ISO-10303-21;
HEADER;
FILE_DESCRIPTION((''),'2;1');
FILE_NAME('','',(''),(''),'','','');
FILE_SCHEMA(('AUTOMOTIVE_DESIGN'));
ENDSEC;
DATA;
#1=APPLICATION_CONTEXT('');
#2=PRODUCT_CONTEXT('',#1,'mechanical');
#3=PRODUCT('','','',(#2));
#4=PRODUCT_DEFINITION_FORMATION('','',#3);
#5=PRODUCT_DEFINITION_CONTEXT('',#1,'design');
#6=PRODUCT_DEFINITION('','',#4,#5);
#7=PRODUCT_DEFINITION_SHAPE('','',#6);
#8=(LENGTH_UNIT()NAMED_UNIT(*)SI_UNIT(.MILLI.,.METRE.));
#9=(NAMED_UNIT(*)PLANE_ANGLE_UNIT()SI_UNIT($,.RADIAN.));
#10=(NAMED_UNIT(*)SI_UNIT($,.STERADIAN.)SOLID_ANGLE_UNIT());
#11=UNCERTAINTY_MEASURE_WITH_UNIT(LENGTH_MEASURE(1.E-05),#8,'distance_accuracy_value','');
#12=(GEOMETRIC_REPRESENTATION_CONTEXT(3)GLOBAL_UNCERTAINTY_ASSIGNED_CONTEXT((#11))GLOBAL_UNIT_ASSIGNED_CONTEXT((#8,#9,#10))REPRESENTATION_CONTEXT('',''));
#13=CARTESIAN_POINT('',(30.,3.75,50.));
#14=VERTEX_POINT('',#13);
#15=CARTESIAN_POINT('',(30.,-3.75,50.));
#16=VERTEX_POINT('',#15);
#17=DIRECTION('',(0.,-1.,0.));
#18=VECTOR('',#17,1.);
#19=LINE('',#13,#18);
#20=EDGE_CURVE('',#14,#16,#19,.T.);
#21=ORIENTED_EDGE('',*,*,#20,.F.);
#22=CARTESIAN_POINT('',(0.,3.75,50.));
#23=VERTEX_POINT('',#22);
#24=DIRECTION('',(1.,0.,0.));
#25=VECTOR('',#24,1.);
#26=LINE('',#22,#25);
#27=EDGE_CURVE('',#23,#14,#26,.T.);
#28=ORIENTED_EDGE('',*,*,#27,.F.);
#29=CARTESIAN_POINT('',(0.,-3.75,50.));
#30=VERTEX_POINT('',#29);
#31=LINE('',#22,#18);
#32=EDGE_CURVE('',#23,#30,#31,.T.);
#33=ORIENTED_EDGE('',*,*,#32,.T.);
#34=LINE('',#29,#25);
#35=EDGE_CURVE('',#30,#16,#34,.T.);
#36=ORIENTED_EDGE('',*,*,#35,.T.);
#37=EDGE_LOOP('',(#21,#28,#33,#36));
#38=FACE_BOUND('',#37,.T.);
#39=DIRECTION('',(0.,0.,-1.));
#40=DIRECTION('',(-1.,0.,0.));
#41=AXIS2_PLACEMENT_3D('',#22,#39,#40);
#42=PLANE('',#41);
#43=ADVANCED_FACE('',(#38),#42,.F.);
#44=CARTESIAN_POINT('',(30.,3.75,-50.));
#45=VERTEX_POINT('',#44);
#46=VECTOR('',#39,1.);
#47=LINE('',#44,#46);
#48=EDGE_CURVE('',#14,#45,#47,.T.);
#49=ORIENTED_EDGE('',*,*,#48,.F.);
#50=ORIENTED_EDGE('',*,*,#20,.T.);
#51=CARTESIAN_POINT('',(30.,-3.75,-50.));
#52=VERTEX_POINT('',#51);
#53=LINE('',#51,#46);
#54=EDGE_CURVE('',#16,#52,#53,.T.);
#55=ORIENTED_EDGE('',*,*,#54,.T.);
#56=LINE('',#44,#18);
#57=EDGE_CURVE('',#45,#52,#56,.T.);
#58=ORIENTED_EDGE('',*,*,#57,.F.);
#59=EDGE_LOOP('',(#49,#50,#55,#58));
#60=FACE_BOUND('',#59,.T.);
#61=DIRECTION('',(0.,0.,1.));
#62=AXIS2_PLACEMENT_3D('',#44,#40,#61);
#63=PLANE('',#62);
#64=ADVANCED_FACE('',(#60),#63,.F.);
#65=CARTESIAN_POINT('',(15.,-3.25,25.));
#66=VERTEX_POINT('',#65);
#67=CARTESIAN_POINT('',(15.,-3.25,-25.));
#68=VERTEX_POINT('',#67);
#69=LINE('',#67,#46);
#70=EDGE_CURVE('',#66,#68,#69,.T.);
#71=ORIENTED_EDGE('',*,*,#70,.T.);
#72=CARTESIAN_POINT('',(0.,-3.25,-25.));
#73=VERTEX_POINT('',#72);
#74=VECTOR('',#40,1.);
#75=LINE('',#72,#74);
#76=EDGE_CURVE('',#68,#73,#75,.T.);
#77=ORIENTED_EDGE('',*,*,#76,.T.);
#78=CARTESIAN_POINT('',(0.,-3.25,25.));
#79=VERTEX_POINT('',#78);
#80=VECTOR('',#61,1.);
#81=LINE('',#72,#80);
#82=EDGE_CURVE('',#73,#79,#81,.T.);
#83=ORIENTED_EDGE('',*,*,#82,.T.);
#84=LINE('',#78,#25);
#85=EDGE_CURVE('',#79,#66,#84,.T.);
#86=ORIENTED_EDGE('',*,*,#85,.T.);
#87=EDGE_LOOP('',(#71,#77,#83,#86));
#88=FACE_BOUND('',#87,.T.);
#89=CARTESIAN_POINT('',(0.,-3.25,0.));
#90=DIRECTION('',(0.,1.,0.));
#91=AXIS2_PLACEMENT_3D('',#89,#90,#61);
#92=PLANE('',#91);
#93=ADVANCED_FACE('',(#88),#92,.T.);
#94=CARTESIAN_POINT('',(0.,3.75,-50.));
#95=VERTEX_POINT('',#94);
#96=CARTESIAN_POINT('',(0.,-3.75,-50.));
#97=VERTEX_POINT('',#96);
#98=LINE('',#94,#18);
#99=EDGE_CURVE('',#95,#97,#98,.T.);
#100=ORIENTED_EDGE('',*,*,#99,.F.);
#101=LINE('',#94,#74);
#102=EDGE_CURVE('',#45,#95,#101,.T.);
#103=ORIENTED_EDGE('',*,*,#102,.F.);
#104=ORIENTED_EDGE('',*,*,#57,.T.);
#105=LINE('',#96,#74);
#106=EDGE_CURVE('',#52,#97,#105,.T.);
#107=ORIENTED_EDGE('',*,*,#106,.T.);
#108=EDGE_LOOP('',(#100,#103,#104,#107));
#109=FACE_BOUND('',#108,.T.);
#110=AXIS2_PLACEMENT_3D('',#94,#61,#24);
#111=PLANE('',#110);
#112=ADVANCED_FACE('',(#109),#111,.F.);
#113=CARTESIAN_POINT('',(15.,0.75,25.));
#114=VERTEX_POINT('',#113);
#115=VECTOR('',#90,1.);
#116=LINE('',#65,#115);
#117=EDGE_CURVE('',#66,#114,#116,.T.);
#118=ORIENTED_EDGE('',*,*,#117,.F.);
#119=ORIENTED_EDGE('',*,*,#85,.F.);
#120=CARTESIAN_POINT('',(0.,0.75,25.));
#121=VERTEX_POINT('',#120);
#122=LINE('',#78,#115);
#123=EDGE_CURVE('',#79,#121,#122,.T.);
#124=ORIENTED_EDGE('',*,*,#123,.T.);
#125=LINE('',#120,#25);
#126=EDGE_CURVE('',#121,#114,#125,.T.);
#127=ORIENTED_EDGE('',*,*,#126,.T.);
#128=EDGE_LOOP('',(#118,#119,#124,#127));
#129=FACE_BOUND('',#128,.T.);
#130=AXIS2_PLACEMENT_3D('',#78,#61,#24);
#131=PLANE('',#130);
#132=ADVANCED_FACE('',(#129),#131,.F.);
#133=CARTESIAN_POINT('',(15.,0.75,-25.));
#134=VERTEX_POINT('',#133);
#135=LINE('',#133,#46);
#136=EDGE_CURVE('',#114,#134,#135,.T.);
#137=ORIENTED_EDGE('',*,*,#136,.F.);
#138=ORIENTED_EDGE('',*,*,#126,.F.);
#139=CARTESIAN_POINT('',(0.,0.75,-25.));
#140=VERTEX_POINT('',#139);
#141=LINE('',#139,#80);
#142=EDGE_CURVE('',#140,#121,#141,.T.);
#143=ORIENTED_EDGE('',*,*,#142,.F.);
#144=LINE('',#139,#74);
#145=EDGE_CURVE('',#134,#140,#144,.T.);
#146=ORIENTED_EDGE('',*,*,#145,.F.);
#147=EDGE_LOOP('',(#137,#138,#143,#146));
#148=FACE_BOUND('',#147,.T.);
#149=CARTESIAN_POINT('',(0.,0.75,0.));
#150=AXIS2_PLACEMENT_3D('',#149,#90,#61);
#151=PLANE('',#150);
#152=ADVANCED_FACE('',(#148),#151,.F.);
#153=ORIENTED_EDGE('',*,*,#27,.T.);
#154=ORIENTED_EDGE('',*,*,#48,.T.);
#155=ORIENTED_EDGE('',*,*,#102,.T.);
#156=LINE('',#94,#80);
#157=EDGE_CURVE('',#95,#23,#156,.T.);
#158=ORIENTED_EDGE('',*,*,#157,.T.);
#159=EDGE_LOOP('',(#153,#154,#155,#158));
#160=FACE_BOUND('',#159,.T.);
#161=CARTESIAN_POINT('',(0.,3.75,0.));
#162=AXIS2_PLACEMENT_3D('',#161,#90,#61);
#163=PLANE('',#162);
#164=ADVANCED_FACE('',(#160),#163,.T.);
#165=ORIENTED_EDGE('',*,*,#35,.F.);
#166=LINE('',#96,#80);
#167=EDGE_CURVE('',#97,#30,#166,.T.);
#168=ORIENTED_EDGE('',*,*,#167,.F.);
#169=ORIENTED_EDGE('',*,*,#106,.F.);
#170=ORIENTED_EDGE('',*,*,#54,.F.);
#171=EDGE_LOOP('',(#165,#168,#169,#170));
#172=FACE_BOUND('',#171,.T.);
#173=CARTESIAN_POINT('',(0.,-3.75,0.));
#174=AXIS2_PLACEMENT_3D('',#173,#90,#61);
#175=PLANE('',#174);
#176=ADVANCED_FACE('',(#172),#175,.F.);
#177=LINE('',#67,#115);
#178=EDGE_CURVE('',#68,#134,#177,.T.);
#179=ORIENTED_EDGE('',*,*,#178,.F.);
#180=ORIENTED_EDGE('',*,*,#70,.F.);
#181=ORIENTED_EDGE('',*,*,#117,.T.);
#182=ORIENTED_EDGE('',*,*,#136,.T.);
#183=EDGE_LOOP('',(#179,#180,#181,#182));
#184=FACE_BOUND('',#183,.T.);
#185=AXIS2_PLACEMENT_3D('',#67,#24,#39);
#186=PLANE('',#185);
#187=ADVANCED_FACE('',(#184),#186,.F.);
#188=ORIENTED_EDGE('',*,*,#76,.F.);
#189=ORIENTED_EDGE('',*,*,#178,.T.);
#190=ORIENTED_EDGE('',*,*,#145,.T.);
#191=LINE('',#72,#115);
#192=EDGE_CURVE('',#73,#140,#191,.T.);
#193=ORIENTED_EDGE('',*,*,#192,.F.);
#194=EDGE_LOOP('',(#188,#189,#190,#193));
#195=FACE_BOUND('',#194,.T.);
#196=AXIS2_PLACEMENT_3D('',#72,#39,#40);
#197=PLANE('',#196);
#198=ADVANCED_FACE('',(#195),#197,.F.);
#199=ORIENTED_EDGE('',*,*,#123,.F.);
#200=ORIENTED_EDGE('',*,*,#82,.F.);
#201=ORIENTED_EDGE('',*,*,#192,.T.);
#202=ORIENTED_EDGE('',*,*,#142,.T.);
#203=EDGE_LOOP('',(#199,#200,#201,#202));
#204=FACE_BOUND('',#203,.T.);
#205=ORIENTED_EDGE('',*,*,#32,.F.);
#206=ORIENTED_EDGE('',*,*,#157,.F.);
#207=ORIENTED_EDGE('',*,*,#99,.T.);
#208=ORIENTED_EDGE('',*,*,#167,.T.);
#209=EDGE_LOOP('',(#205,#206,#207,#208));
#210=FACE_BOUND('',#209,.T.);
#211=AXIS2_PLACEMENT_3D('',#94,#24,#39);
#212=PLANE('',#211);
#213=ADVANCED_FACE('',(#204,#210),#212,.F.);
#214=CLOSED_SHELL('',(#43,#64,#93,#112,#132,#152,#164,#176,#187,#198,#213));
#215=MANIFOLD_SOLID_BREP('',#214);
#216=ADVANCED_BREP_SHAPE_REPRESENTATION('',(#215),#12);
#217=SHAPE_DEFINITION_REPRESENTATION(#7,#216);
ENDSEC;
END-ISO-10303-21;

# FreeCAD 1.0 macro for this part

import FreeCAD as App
import Part
import Sketcher
from FreeCAD import Vector

doc = App.newDocument("Part")
body = doc.addObject("PartDesign::Body", "Body")

sketch1 = body.newObject("Sketcher::SketchObject", "Sketch")
sketch1.AttachmentSupport = (doc.getObject("XZ_Plane"), [""])
sketch1.MapMode = "FlatFace"
sketch1.addGeometry([
    Part.LineSegment(Vector(0, -50, 0), Vector(0, 50, 0)),
    Part.LineSegment(Vector(0, 50, 0), Vector(30, 50, 0)),
    Part.LineSegment(Vector(30, 50, 0), Vector(30, -50, 0)),
    Part.LineSegment(Vector(30, -50, 0), Vector(0, -50, 0)),
], False)
sketch1.addConstraint([
    Sketcher.Constraint("Coincident", 0, 2, 1, 1),
    Sketcher.Constraint("Coincident", 1, 2, 2, 1),
    Sketcher.Constraint("Coincident", 2, 2, 3, 1),
    Sketcher.Constraint("Coincident", 3, 2, 0, 1),
    Sketcher.Constraint("Vertical", 0),
    Sketcher.Constraint("Horizontal", 1),
    Sketcher.Constraint("Vertical", 2),
    Sketcher.Constraint("Horizontal", 3),
    Sketcher.Constraint("Symmetric", 0, 2, 3, 2, -1, 1),
    Sketcher.Constraint("DistanceX", 1, 1, 1, 2, 30.0),
    Sketcher.Constraint("DistanceY", 0, 1, 0, 2, 100.0),
])
pad1 = body.newObject("PartDesign::Pad", "Pad")
pad1.Profile = sketch1
pad1.Length = 7.5
pad1.Midplane = True

sketch2 = body.newObject("Sketcher::SketchObject", "Sketch001")
sketch2.AttachmentSupport = (doc.getObject("XZ_Plane"), [""])
sketch2.MapMode = "FlatFace"
sketch2.AttachmentOffset = App.Placement(Vector(0, 0, -0.75), App.Rotation())
sketch2.addGeometry([
    Part.LineSegment(Vector(0, -25, 0), Vector(0, 25, 0)),
    Part.LineSegment(Vector(0, 25, 0), Vector(15, 25, 0)),
    Part.LineSegment(Vector(15, 25, 0), Vector(15, -25, 0)),
    Part.LineSegment(Vector(15, -25, 0), Vector(0, -25, 0)),
], False)
sketch2.addConstraint([
    Sketcher.Constraint("Coincident", 0, 2, 1, 1),
    Sketcher.Constraint("Coincident", 1, 2, 2, 1),
    Sketcher.Constraint("Coincident", 2, 2, 3, 1),
    Sketcher.Constraint("Coincident", 3, 2, 0, 1),
    Sketcher.Constraint("Vertical", 0),
    Sketcher.Constraint("Horizontal", 1),
    Sketcher.Constraint("Vertical", 2),
    Sketcher.Constraint("Horizontal", 3),
    Sketcher.Constraint("Symmetric", 0, 2, 3, 2, -1, 1),
    Sketcher.Constraint("DistanceX", 1, 1, 1, 2, 15.0),
    Sketcher.Constraint("DistanceY", 0, 1, 0, 2, 50.0),
])
pocket1 = body.newObject("PartDesign::Pocket", "Pocket")
pocket1.Profile = sketch2
pocket1.Length = 4
pocket1.Reversed = True

doc.recompute()
